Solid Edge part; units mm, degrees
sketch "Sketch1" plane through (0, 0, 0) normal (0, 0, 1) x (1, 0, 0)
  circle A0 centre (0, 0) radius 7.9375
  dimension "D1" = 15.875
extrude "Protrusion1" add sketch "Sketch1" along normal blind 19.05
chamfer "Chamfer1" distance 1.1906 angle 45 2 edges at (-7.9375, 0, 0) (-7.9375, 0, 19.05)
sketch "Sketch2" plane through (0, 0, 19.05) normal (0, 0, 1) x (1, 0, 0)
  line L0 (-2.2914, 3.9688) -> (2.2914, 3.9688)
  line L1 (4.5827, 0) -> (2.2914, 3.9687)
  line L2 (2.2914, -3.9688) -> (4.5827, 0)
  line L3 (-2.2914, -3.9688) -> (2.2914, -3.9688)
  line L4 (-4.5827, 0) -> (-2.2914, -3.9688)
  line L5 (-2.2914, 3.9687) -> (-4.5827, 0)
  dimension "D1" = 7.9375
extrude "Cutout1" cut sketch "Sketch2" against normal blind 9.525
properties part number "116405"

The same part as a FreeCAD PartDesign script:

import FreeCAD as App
import Part
import Sketcher

V = App.Vector
Q = App.Units.Quantity


def edges_at(feature, points):
    """Names of the edges that pass closest to the given points."""
    edges = feature.Shape.Edges
    near = lambda p: min(range(len(edges)), key=lambda i: edges[i].distToShape(Part.Vertex(*p))[0])
    return sorted({f"Edge{near(p) + 1}" for p in points})


def add_polygon(sketch, points):
    """Adds a closed chain of lines whose ends are joined by coincident constraints."""
    first, n = sketch.GeometryCount, len(points)
    for a, b in zip(points, points[1:] + points[:1]):
        sketch.addGeometry(Part.LineSegment(App.Vector(*a, 0), App.Vector(*b, 0)), False)
    for i in range(n):
        sketch.addConstraint(Sketcher.Constraint("Coincident", first + i, 2, first + (i + 1) % n, 1))

doc = App.newDocument("Part")
body = doc.addObject("PartDesign::Body", "Body")

sketch1 = body.newObject("Sketcher::SketchObject", "Sketch")
sketch1.AttachmentSupport = (doc.getObject("XY_Plane"), [""])
sketch1.MapMode = "FlatFace"
sketch1.addGeometry(Part.Circle(V(0, 0, 0), V(0, 0, 1), 7.9375), False)
sketch1.addConstraint(Sketcher.Constraint("Coincident", 0, 3, -1, 1))
sketch1.addConstraint(Sketcher.Constraint("Diameter", 0, Q("0.625 in")))
pad1 = body.newObject("PartDesign::Pad", "Pad")
pad1.Profile = sketch1
pad1.Length = Q("0.75 in")
doc.recompute()

chamfer = body.newObject("PartDesign::Chamfer", "Chamfer")
chamfer.Base = (pad1, edges_at(pad1, [(-7.938, 0, 0), (-7.938, 0, 19.05)]))
chamfer.Size = Q("0.046874 in")

sketch2 = body.newObject("Sketcher::SketchObject", "Sketch001")
sketch2.AttachmentSupport = (doc.getObject("XY_Plane"), [""])
sketch2.MapMode = "FlatFace"
sketch2.AttachmentOffset = App.Placement(V(0, 0, 0.75 * 25.4), App.Rotation())
add_polygon(sketch2, [(2.2914, 3.9688), (-2.2914, 3.9688), (-4.5827, 0), (-2.2914, -3.9688), (2.2914, -3.9688), (4.5827, 0)])
sketch2.addConstraint(Sketcher.Constraint("Horizontal", 0))
sketch2.addConstraint(Sketcher.Constraint("Horizontal", 3))
sketch2.addConstraint(Sketcher.Constraint("Symmetric", 0, 2, 3, 2, -1, 1))
sketch2.addConstraint(Sketcher.Constraint("Symmetric", 1, 2, 4, 2, -1, 1))
sketch2.addConstraint(Sketcher.Constraint("PointOnObject", 1, 2, -1))
sketch2.addConstraint(Sketcher.Constraint("Parallel", 2, 5))
sketch2.addConstraint(Sketcher.Constraint("Vertical", 0, 2, 2, 2))
sketch2.addConstraint(Sketcher.Constraint("Angle", 1, Q("-119.999 deg")))
sketch2.addConstraint(Sketcher.Constraint("DistanceY", -1, 1, 0, 2, Q("0.156252 in")))
sketch2.addConstraint(Sketcher.Constraint("DistanceX", 0, 2, 0, 1, Q("4.5828 mm")))
pocket1 = body.newObject("PartDesign::Pocket", "Pocket")
pocket1.Profile = sketch2
pocket1.Length = Q("0.375 in")

doc.recompute()
